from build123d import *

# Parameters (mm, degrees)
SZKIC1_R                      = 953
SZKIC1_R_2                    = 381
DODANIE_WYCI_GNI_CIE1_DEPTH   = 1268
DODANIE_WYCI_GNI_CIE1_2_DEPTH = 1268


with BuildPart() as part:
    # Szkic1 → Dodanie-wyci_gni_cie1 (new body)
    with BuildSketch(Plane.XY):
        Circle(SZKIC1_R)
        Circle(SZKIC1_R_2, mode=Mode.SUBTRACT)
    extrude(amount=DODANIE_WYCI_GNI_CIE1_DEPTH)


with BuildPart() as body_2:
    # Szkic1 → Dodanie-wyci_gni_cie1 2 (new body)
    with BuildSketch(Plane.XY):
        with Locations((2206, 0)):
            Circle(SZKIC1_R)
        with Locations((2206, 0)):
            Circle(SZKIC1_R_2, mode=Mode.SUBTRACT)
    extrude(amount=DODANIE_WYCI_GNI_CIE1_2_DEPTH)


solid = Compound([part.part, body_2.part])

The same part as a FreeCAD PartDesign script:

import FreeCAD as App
import Part
import Sketcher

V = App.Vector
Q = App.Units.Quantity

doc = App.newDocument("Part")
body = doc.addObject("PartDesign::Body", "Body")

# Sketch on XY plane
sketch1 = body.newObject("Sketcher::SketchObject", "Sketch")
sketch1.AttachmentSupport = (doc.getObject("XY_Plane"), [""])
sketch1.MapMode = "FlatFace"
sketch1.addGeometry(Part.Circle(V(0, 0, 0), V(0, 0, 1), 953), False)
sketch1.addGeometry(Part.Circle(V(0, 0, 0), V(0, 0, 1), 381), False)
sketch1.addConstraint(Sketcher.Constraint("Coincident", 0, 3, -1, 1))
sketch1.addConstraint(Sketcher.Constraint("Coincident", 1, 3, -1, 1))
sketch1.addConstraint(Sketcher.Constraint("Diameter", 0, Q("1906 mm")))
sketch1.addConstraint(Sketcher.Constraint("Diameter", 1, Q("762 mm")))
pad1 = body.newObject("PartDesign::Pad", "Pad")
pad1.Profile = sketch1
pad1.Length = 1268
body2 = doc.addObject("PartDesign::Body", "Body001")

# Sketch on XY plane
sketch2 = body2.newObject("Sketcher::SketchObject", "Sketch001")
sketch2.AttachmentSupport = (doc.getObject("XY_Plane001"), [""])
sketch2.MapMode = "FlatFace"
sketch2.addGeometry(Part.Circle(V(2206, 0, 0), V(0, 0, 1), 953), False)
sketch2.addGeometry(Part.Circle(V(2206, 0, 0), V(0, 0, 1), 381), False)
sketch2.addConstraint(Sketcher.Constraint("Coincident", 1, 3, 0, 3))
sketch2.addConstraint(Sketcher.Constraint("PointOnObject", 0, 3, -1))
sketch2.addConstraint(Sketcher.Constraint("Diameter", 0, Q("1906 mm")))
sketch2.addConstraint(Sketcher.Constraint("Diameter", 1, Q("762 mm")))
sketch2.addConstraint(Sketcher.Constraint("DistanceX", -1, 1, 0, 3, Q("2206 mm")))
pad2 = body2.newObject("PartDesign::Pad", "Pad001")
pad2.Profile = sketch2
pad2.Length = 1268

doc.recompute()
